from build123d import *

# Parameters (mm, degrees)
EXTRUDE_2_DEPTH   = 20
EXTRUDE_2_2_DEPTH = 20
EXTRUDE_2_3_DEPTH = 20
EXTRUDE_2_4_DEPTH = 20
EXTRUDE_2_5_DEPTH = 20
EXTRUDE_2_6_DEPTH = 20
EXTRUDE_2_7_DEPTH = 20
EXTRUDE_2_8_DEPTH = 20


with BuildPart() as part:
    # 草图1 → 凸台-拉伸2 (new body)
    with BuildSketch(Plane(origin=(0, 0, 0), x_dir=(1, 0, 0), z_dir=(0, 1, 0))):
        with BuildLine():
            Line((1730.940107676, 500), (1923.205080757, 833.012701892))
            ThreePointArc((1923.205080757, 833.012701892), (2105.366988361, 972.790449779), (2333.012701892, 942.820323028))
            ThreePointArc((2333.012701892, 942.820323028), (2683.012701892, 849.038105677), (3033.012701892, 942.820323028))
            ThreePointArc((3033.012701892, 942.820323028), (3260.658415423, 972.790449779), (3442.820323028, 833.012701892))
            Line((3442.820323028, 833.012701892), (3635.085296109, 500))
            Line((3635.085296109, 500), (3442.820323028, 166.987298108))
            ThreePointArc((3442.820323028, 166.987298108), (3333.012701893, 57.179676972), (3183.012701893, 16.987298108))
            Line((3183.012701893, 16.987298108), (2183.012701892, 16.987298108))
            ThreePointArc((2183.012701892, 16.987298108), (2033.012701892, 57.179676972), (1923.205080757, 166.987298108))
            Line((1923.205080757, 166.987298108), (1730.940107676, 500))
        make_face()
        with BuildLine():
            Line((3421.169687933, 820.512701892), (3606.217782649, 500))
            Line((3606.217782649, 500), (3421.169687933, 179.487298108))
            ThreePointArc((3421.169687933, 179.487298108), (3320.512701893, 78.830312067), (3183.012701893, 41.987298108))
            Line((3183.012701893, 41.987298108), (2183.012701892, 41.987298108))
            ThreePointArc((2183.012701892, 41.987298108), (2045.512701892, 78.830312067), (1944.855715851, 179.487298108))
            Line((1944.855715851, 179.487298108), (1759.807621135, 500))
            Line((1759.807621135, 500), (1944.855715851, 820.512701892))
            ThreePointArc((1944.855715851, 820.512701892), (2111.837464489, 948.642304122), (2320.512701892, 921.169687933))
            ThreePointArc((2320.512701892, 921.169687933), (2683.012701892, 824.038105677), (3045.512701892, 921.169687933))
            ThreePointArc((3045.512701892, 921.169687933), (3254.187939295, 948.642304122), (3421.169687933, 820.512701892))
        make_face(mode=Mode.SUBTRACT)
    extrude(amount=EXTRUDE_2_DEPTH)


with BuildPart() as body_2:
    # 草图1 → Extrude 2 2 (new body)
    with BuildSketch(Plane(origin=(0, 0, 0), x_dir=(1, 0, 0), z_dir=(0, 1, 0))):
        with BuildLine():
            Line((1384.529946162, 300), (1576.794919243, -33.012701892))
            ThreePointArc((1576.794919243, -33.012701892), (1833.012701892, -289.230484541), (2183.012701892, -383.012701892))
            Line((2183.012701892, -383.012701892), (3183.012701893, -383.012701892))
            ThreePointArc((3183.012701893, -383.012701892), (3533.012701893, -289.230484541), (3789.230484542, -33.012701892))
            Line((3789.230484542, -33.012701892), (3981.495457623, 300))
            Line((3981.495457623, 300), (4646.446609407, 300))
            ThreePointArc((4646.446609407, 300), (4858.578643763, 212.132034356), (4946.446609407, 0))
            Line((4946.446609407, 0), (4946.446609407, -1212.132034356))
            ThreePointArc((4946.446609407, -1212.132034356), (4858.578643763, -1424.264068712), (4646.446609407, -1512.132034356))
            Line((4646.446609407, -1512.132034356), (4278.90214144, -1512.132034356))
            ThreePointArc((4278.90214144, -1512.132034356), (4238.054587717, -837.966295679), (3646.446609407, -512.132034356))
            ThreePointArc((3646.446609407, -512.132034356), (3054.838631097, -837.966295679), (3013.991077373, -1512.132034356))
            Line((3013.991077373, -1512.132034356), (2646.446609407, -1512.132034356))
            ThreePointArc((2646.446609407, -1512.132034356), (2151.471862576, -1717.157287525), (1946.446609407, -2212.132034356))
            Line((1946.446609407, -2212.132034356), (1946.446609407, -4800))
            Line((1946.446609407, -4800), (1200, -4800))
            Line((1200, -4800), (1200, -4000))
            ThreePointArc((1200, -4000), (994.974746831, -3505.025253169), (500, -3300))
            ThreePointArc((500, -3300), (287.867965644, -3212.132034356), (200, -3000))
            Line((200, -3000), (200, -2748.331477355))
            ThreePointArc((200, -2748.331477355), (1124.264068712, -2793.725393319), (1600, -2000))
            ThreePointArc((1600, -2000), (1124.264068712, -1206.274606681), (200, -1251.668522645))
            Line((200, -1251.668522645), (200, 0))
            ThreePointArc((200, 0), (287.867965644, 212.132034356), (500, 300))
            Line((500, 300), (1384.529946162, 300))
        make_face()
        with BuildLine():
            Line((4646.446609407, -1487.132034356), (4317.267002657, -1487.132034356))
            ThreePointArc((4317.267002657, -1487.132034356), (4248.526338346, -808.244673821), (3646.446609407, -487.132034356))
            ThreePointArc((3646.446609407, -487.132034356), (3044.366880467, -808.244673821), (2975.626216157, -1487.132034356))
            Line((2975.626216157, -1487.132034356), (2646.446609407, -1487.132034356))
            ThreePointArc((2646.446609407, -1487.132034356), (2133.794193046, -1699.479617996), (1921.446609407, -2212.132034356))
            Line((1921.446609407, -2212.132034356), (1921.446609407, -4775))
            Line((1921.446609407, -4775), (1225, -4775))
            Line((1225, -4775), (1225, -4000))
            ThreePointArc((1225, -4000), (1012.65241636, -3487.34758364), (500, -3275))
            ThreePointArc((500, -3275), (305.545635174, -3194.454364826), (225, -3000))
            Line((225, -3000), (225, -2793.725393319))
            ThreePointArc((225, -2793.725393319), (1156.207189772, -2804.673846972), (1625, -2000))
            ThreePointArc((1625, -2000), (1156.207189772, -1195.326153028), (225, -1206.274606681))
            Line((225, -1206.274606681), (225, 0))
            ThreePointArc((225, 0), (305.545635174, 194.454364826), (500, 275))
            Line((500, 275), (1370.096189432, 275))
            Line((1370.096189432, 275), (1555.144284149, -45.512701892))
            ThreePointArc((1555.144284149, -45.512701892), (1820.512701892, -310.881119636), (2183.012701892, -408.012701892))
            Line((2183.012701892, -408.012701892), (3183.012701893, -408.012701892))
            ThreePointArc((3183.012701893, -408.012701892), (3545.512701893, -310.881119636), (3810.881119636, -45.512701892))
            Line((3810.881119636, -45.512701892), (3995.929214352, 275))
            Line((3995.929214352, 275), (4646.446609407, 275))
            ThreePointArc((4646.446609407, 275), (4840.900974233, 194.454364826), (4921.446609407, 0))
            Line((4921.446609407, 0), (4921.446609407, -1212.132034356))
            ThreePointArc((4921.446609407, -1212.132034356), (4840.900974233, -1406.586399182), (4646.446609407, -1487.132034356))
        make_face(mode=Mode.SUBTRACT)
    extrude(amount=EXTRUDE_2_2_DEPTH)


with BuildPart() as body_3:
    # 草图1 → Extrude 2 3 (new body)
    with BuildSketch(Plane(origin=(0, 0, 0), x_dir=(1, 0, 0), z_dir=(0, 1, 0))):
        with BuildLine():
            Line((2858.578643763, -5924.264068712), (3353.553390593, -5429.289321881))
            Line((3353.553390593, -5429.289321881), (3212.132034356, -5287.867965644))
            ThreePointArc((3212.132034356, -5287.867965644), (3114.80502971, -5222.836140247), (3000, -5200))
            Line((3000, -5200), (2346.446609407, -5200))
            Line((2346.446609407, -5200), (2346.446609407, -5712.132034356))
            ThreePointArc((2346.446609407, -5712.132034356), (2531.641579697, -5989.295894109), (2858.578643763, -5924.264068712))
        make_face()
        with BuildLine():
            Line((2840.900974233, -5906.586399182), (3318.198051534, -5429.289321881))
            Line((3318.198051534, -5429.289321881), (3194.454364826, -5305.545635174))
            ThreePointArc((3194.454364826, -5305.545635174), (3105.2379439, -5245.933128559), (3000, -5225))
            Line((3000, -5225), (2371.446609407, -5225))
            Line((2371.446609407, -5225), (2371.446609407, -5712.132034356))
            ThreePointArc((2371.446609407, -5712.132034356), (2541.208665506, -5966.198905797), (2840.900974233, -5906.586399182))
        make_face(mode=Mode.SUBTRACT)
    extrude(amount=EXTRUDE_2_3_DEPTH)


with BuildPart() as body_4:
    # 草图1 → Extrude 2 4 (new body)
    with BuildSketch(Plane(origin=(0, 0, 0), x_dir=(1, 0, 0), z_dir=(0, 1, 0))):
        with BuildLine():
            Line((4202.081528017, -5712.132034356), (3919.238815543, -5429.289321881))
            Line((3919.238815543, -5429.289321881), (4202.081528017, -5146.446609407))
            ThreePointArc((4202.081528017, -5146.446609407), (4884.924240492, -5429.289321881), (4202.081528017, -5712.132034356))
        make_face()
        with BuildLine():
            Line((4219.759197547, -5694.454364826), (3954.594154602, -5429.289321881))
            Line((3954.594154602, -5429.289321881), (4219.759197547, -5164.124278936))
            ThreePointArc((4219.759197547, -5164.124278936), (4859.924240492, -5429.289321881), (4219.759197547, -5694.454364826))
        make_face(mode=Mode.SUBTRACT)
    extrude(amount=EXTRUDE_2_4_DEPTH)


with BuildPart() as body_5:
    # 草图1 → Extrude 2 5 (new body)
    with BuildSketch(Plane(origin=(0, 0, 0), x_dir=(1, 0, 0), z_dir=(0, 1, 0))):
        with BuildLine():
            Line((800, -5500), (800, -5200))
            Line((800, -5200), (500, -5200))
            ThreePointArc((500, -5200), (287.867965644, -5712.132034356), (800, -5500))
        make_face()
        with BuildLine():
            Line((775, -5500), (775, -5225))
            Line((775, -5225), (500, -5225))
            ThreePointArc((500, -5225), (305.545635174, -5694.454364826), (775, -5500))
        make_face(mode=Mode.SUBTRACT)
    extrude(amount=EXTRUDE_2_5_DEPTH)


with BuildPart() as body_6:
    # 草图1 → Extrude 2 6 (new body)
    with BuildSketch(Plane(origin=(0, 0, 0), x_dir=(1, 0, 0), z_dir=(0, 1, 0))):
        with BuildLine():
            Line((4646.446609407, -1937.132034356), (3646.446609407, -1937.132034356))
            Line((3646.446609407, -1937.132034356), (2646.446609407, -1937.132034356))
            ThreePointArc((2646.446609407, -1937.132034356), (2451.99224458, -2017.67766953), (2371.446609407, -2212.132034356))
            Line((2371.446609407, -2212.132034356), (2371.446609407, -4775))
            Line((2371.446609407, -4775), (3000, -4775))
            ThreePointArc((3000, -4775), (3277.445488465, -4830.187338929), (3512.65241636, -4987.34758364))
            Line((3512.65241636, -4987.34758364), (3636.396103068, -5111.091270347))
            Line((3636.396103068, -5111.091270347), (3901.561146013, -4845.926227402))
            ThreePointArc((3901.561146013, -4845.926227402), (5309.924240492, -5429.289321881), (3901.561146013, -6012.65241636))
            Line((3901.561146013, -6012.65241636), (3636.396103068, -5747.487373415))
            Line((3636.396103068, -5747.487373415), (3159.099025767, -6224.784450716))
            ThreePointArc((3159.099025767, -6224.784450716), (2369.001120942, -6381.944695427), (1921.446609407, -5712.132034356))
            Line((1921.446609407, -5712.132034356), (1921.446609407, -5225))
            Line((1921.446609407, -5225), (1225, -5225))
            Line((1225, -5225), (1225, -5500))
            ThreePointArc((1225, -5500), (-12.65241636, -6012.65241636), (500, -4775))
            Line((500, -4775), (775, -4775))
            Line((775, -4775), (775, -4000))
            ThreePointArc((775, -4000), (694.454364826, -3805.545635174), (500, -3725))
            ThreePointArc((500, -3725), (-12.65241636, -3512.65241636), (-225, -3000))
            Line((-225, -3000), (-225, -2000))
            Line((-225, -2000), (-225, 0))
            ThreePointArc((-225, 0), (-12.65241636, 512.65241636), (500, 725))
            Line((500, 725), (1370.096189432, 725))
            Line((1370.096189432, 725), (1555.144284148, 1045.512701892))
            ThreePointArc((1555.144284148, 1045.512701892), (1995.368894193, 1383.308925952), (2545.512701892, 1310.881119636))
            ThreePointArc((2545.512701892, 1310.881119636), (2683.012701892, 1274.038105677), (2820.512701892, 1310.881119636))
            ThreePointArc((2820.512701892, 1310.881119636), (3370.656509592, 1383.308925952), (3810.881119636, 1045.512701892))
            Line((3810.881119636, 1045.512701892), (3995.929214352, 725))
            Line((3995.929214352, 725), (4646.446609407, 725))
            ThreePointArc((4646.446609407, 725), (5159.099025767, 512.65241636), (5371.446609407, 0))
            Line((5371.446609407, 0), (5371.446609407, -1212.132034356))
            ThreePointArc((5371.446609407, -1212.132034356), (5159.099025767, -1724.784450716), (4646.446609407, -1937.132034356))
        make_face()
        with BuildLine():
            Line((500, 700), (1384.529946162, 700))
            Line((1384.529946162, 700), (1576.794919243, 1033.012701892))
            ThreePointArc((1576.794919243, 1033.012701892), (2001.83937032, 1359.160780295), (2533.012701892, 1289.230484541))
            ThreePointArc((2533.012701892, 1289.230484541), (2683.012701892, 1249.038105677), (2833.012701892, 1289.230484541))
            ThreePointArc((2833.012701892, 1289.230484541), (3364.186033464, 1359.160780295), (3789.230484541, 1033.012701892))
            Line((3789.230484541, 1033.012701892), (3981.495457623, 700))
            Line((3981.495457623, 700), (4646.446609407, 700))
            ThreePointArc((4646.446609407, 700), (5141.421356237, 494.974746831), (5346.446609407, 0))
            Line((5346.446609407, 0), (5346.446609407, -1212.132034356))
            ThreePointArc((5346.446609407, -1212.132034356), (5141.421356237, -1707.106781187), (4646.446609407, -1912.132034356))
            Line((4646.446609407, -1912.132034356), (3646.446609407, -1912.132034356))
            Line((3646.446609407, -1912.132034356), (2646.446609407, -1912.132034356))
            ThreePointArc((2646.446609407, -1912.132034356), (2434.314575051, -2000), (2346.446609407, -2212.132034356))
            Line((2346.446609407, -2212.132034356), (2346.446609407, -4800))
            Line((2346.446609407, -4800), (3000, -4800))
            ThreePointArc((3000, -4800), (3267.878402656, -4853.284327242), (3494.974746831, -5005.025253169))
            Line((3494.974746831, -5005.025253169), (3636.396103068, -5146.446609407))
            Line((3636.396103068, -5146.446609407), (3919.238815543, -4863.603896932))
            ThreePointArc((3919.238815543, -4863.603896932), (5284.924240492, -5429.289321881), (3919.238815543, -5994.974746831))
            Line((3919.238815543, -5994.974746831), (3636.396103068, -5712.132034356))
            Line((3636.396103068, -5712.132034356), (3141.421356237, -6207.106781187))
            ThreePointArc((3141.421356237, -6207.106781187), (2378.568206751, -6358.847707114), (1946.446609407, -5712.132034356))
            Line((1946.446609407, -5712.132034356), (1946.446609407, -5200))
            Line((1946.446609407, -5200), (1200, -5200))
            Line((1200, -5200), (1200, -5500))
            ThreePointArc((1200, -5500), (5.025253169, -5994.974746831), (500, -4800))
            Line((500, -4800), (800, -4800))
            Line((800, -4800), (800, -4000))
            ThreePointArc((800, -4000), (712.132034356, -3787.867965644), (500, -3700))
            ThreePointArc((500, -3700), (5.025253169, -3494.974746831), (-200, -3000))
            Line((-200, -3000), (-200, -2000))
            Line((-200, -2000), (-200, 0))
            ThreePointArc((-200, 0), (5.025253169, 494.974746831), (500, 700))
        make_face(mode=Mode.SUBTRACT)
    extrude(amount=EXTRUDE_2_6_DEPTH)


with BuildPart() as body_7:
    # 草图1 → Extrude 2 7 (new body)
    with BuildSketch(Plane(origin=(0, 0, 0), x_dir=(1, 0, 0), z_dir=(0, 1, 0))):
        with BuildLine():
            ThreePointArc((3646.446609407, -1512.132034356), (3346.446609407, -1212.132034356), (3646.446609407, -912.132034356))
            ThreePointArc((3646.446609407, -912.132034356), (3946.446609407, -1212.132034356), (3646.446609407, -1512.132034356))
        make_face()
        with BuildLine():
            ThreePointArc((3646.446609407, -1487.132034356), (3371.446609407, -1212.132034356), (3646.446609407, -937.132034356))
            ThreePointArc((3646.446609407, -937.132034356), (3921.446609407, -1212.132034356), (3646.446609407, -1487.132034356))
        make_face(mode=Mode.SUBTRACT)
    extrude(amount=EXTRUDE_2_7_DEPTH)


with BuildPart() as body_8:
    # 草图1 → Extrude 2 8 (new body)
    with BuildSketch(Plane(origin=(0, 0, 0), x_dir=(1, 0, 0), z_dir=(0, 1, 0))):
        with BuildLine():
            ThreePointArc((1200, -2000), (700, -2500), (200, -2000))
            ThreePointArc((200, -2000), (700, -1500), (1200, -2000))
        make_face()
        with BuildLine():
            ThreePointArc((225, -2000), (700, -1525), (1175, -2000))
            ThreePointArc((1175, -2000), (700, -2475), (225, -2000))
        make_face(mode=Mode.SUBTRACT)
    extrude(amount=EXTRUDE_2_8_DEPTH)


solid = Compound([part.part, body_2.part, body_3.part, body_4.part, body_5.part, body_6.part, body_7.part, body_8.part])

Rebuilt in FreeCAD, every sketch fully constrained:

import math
import FreeCAD as App
import Part
import Sketcher
Q = App.Units.Quantity

doc = App.newDocument("Part")
body = doc.addObject("PartDesign::Body", "Body")

# Sketch on XZ plane
sketch1 = body.newObject("Sketcher::SketchObject", "Sketch")
sketch1.AttachmentSupport = (doc.getObject("XZ_Plane"), [""])
sketch1.MapMode = "FlatFace"
sketch1.addGeometry([
    Part.LineSegment(App.Vector(1923, -833, 0), App.Vector(1731, -500, 0)),  # 0
    Part.LineSegment(App.Vector(1731, -500, 0), App.Vector(1923, -167, 0)),  # 1
    Part.ArcOfCircle(Part.Circle(App.Vector(2183, -317, 0), App.Vector(0, 0, 1), 300), math.radians(90), math.radians(150)),  # 2
    Part.LineSegment(App.Vector(2183, -17, 0), App.Vector(3183, -17, 0)),  # 3
    Part.ArcOfCircle(Part.Circle(App.Vector(3183, -317, 0), App.Vector(0, 0, 1), 300), math.radians(30), math.radians(90)),  # 4
    Part.LineSegment(App.Vector(3443, -167, 0), App.Vector(3635, -500, 0)),  # 5
    Part.LineSegment(App.Vector(3635, -500, 0), App.Vector(3443, -833, 0)),  # 6
    Part.ArcOfCircle(Part.Circle(App.Vector(3183, -683, 0), App.Vector(0, 0, 1), 300), math.radians(-120), math.radians(-30)),  # 7
    Part.ArcOfCircle(Part.Circle(App.Vector(2683, -1549, 0), App.Vector(0, 0, 1), 700), math.radians(60), math.radians(120)),  # 8
    Part.ArcOfCircle(Part.Circle(App.Vector(2183, -683, 0), App.Vector(0, 0, 1), 300), math.radians(-150), math.radians(-60)),  # 9
    Part.LineSegment(App.Vector(3421, -821, 0), App.Vector(3606, -500, 0)),  # 10
    Part.LineSegment(App.Vector(3606, -500, 0), App.Vector(3421, -179, 0)),  # 11
    Part.ArcOfCircle(Part.Circle(App.Vector(3183, -317, 0), App.Vector(0, 0, 1), 275), math.radians(30), math.radians(90)),  # 12
    Part.LineSegment(App.Vector(3183, -42, 0), App.Vector(2183, -42, 0)),  # 13
    Part.ArcOfCircle(Part.Circle(App.Vector(2183, -317, 0), App.Vector(0, 0, 1), 275), math.radians(90), math.radians(150)),  # 14
    Part.LineSegment(App.Vector(1945, -179, 0), App.Vector(1760, -500, 0)),  # 15
    Part.LineSegment(App.Vector(1760, -500, 0), App.Vector(1945, -821, 0)),  # 16
    Part.ArcOfCircle(Part.Circle(App.Vector(2183, -683, 0), App.Vector(0, 0, 1), 275), math.radians(-150), math.radians(-60)),  # 17
    Part.ArcOfCircle(Part.Circle(App.Vector(2683, -1549, 0), App.Vector(0, 0, 1), 725), math.radians(60), math.radians(120)),  # 18
    Part.ArcOfCircle(Part.Circle(App.Vector(3183, -683, 0), App.Vector(0, 0, 1), 275), math.radians(-120), math.radians(-30)),  # 19
], False)
sketch1.addConstraint([
    Sketcher.Constraint("Coincident", 0, 2, 1, 1),
    Sketcher.Constraint("Tangent", 1, 2, 2, 2),
    Sketcher.Constraint("Tangent", 2, 1, 3, 1),
    Sketcher.Constraint("Tangent", 3, 2, 4, 2),
    Sketcher.Constraint("Tangent", 4, 1, 5, 1),
    Sketcher.Constraint("Coincident", 5, 2, 6, 1),
    Sketcher.Constraint("Tangent", 6, 2, 7, 2),
    Sketcher.Constraint("Tangent", 7, 1, 8, 1),
    Sketcher.Constraint("Tangent", 8, 2, 9, 2),
    Sketcher.Constraint("Tangent", 9, 1, 0, 1),
    Sketcher.Constraint("Coincident", 10, 2, 11, 1),
    Sketcher.Constraint("Tangent", 11, 2, 12, 1),
    Sketcher.Constraint("Tangent", 12, 2, 13, 1),
    Sketcher.Constraint("Tangent", 13, 2, 14, 1),
    Sketcher.Constraint("Tangent", 14, 2, 15, 1),
    Sketcher.Constraint("Coincident", 15, 2, 16, 1),
    Sketcher.Constraint("Tangent", 16, 2, 17, 1),
    Sketcher.Constraint("Tangent", 17, 2, 18, 2),
    Sketcher.Constraint("Tangent", 18, 1, 19, 1),
    Sketcher.Constraint("Tangent", 19, 2, 10, 1),
    Sketcher.Constraint("Horizontal", 3),
    Sketcher.Constraint("Horizontal", 13),
    Sketcher.Constraint("Coincident", 12, 3, 4, 3),
    Sketcher.Constraint("Coincident", 14, 3, 2, 3),
    Sketcher.Constraint("Coincident", 17, 3, 9, 3),
    Sketcher.Constraint("Coincident", 18, 3, 8, 3),
    Sketcher.Constraint("Coincident", 19, 3, 7, 3),
    Sketcher.Constraint("Equal", 2, 4),
    Sketcher.Constraint("Equal", 4, 7),
    Sketcher.Constraint("Equal", 7, 9),
    Sketcher.Constraint("Equal", 14, 17),
    Sketcher.Constraint("Parallel", 0, 5),
    Sketcher.Constraint("Parallel", 1, 6),
    Sketcher.Constraint("Parallel", 6, 10),
    Sketcher.Constraint("Parallel", 5, 11),
    Sketcher.Constraint("Parallel", 10, 15),
    Sketcher.Constraint("Parallel", 11, 16),
    Sketcher.Constraint("Horizontal", 7, 3, 9, 3),
    Sketcher.Constraint("Horizontal", 0, 2, 5, 2),
    Sketcher.Constraint("Horizontal", 5, 2, 10, 2),
    Sketcher.Constraint("Vertical", 4, 3, 7, 3),
    Sketcher.Constraint("Radius", 2, 300.0),
    Sketcher.Constraint("Radius", 8, 700.0),
    Sketcher.Constraint("Radius", 12, 275.0),
    Sketcher.Constraint("DistanceX", 3, 1, 3, 2, 1000.0),
    Sketcher.Constraint("Angle", 0, Q("120 deg")),
    Sketcher.Constraint("DistanceY", 0, 2, -1, 1, 500.0),
    Sketcher.Constraint("DistanceX", -1, 1, 2, 3, 2183.012702),
    Sketcher.Constraint("DistanceY", 2, 3, -1, 1, 316.987298),
])
pad1 = body.newObject("PartDesign::Pad", "Pad")
pad1.Profile = sketch1
pad1.Length = 20
pad1.Reversed = True
body2 = doc.addObject("PartDesign::Body", "Body001")

# Sketch on XZ plane
sketch2 = body2.newObject("Sketcher::SketchObject", "Sketch001")
sketch2.AttachmentSupport = (doc.getObject("XZ_Plane001"), [""])
sketch2.MapMode = "FlatFace"
sketch2.addGeometry([
    Part.LineSegment(App.Vector(1577, 33, 0), App.Vector(1385, -300, 0)),  # 0
    Part.LineSegment(App.Vector(1385, -300, 0), App.Vector(500, -300, 0)),  # 1
    Part.ArcOfCircle(Part.Circle(App.Vector(500, 0, 0), App.Vector(0, 0, 1), 300), math.radians(180), math.radians(270)),  # 2
    Part.LineSegment(App.Vector(200, 0, 0), App.Vector(200, 1252, 0)),  # 3
    Part.ArcOfCircle(Part.Circle(App.Vector(700, 2000, 0), App.Vector(0, 0, 1), 900), math.radians(-124), math.radians(0)),  # 4
    Part.ArcOfCircle(Part.Circle(App.Vector(700, 2000, 0), App.Vector(0, 0, 1), 900), math.radians(0), math.radians(124)),  # 5
    Part.LineSegment(App.Vector(200, 2748, 0), App.Vector(200, 3000, 0)),  # 6
    Part.ArcOfCircle(Part.Circle(App.Vector(500, 3000, 0), App.Vector(0, 0, 1), 300), math.radians(90), math.radians(180)),  # 7
    Part.ArcOfCircle(Part.Circle(App.Vector(500, 4000, 0), App.Vector(0, 0, 1), 700), math.radians(-90), math.radians(0)),  # 8
    Part.LineSegment(App.Vector(1200, 4000, 0), App.Vector(1200, 4800, 0)),  # 9
    Part.LineSegment(App.Vector(1200, 4800, 0), App.Vector(1946, 4800, 0)),  # 10
    Part.LineSegment(App.Vector(1946, 4800, 0), App.Vector(1946, 2212, 0)),  # 11
    Part.ArcOfCircle(Part.Circle(App.Vector(2646, 2212, 0), App.Vector(0, 0, 1), 700), math.radians(180), math.radians(270)),  # 12
    Part.LineSegment(App.Vector(2646, 1512, 0), App.Vector(3014, 1512, 0)),  # 13
    Part.ArcOfCircle(Part.Circle(App.Vector(3646, 1212, 0), App.Vector(0, 0, 1), 700), math.radians(155), math.radians(385)),  # 14
    Part.LineSegment(App.Vector(4279, 1512, 0), App.Vector(4646, 1512, 0)),  # 15
    Part.ArcOfCircle(Part.Circle(App.Vector(4646, 1212, 0), App.Vector(0, 0, 1), 300), math.radians(0), math.radians(90)),  # 16
    Part.LineSegment(App.Vector(4946, 1212, 0), App.Vector(4946, 0, 0)),  # 17
    Part.ArcOfCircle(Part.Circle(App.Vector(4646, 0, 0), App.Vector(0, 0, 1), 300), math.radians(-90), math.radians(0)),  # 18
    Part.LineSegment(App.Vector(4646, -300, 0), App.Vector(3981, -300, 0)),  # 19
    Part.LineSegment(App.Vector(3981, -300, 0), App.Vector(3789, 33, 0)),  # 20
    Part.ArcOfCircle(Part.Circle(App.Vector(3183, -317, 0), App.Vector(0, 0, 1), 700), math.radians(30), math.radians(90)),  # 21
    Part.LineSegment(App.Vector(3183, 383, 0), App.Vector(2183, 383, 0)),  # 22
    Part.ArcOfCircle(Part.Circle(App.Vector(2183, -317, 0), App.Vector(0, 0, 1), 700), math.radians(90), math.radians(150)),  # 23
    Part.LineSegment(App.Vector(4646, 1487, 0), App.Vector(4317, 1487, 0)),  # 24
    Part.ArcOfCircle(Part.Circle(App.Vector(3646, 1212, 0), App.Vector(0, 0, 1), 725), math.radians(158), math.radians(382)),  # 25
    Part.LineSegment(App.Vector(2976, 1487, 0), App.Vector(2646, 1487, 0)),  # 26
    Part.ArcOfCircle(Part.Circle(App.Vector(2646, 2212, 0), App.Vector(0, 0, 1), 725), math.radians(180), math.radians(270)),  # 27
    Part.LineSegment(App.Vector(1921, 2212, 0), App.Vector(1921, 4775, 0)),  # 28
    Part.LineSegment(App.Vector(1921, 4775, 0), App.Vector(1225, 4775, 0)),  # 29
    Part.LineSegment(App.Vector(1225, 4775, 0), App.Vector(1225, 4000, 0)),  # 30
    Part.ArcOfCircle(Part.Circle(App.Vector(500, 4000, 0), App.Vector(0, 0, 1), 725), math.radians(-90), math.radians(0)),  # 31
    Part.ArcOfCircle(Part.Circle(App.Vector(500, 3000, 0), App.Vector(0, 0, 1), 275), math.radians(90), math.radians(180)),  # 32
    Part.LineSegment(App.Vector(225, 3000, 0), App.Vector(225, 2794, 0)),  # 33
    Part.ArcOfCircle(Part.Circle(App.Vector(700, 2000, 0), App.Vector(0, 0, 1), 925), math.radians(0), math.radians(121)),  # 34
    Part.ArcOfCircle(Part.Circle(App.Vector(700, 2000, 0), App.Vector(0, 0, 1), 925), math.radians(-121), math.radians(0)),  # 35
    Part.LineSegment(App.Vector(225, 1206, 0), App.Vector(225, 0, 0)),  # 36
    Part.ArcOfCircle(Part.Circle(App.Vector(500, 0, 0), App.Vector(0, 0, 1), 275), math.radians(-180), math.radians(-90)),  # 37
    Part.LineSegment(App.Vector(500, -275, 0), App.Vector(1370, -275, 0)),  # 38
    Part.LineSegment(App.Vector(1370, -275, 0), App.Vector(1555, 46, 0)),  # 39
    Part.ArcOfCircle(Part.Circle(App.Vector(2183, -317, 0), App.Vector(0, 0, 1), 725), math.radians(90), math.radians(150)),  # 40
    Part.LineSegment(App.Vector(2183, 408, 0), App.Vector(3183, 408, 0)),  # 41
    Part.ArcOfCircle(Part.Circle(App.Vector(3183, -317, 0), App.Vector(0, 0, 1), 725), math.radians(30), math.radians(90)),  # 42
    Part.LineSegment(App.Vector(3811, 46, 0), App.Vector(3996, -275, 0)),  # 43
    Part.LineSegment(App.Vector(3996, -275, 0), App.Vector(4646, -275, 0)),  # 44
    Part.ArcOfCircle(Part.Circle(App.Vector(4646, 0, 0), App.Vector(0, 0, 1), 275), math.radians(-90), math.radians(0)),  # 45
    Part.LineSegment(App.Vector(4921, 0, 0), App.Vector(4921, 1212, 0)),  # 46
    Part.ArcOfCircle(Part.Circle(App.Vector(4646, 1212, 0), App.Vector(0, 0, 1), 275), math.radians(0), math.radians(90)),  # 47
], False)
sketch2.addConstraint([
    Sketcher.Constraint("Coincident", 0, 2, 1, 1),
    Sketcher.Constraint("Tangent", 1, 2, 2, 2),
    Sketcher.Constraint("Tangent", 2, 1, 3, 1),
    Sketcher.Constraint("Coincident", 3, 2, 4, 1),
    Sketcher.Constraint("Coincident", 4, 2, 5, 1),
    Sketcher.Constraint("Coincident", 5, 2, 6, 1),
    Sketcher.Constraint("Tangent", 6, 2, 7, 2),
    Sketcher.Constraint("Tangent", 7, 1, 8, 1),
    Sketcher.Constraint("Tangent", 8, 2, 9, 1),
    Sketcher.Constraint("Coincident", 9, 2, 10, 1),
    Sketcher.Constraint("Coincident", 10, 2, 11, 1),
    Sketcher.Constraint("Tangent", 11, 2, 12, 1),
    Sketcher.Constraint("Tangent", 12, 2, 13, 1),
    Sketcher.Constraint("Coincident", 13, 2, 14, 1),
    Sketcher.Constraint("Coincident", 14, 2, 15, 1),
    Sketcher.Constraint("Tangent", 15, 2, 16, 2),
    Sketcher.Constraint("Tangent", 16, 1, 17, 1),
    Sketcher.Constraint("Tangent", 17, 2, 18, 2),
    Sketcher.Constraint("Tangent", 18, 1, 19, 1),
    Sketcher.Constraint("Coincident", 19, 2, 20, 1),
    Sketcher.Constraint("Tangent", 20, 2, 21, 1),
    Sketcher.Constraint("Tangent", 21, 2, 22, 1),
    Sketcher.Constraint("Tangent", 22, 2, 23, 1),
    Sketcher.Constraint("Tangent", 23, 2, 0, 1),
    Sketcher.Constraint("Coincident", 24, 2, 25, 2),
    Sketcher.Constraint("Coincident", 25, 1, 26, 1),
    Sketcher.Constraint("Tangent", 26, 2, 27, 2),
    Sketcher.Constraint("Coincident", 27, 1, 28, 1),
    Sketcher.Constraint("Coincident", 28, 2, 29, 1),
    Sketcher.Constraint("Coincident", 29, 2, 30, 1),
    Sketcher.Constraint("Tangent", 30, 2, 31, 2),
    Sketcher.Constraint("Tangent", 31, 1, 32, 1),
    Sketcher.Constraint("Tangent", 32, 2, 33, 1),
    Sketcher.Constraint("Coincident", 33, 2, 34, 2),
    Sketcher.Constraint("Coincident", 34, 1, 35, 2),
    Sketcher.Constraint("Coincident", 35, 1, 36, 1),
    Sketcher.Constraint("Tangent", 36, 2, 37, 1),
    Sketcher.Constraint("Tangent", 37, 2, 38, 1),
    Sketcher.Constraint("Coincident", 38, 2, 39, 1),
    Sketcher.Constraint("Tangent", 39, 2, 40, 2),
    Sketcher.Constraint("Tangent", 40, 1, 41, 1),
    Sketcher.Constraint("Tangent", 41, 2, 42, 2),
    Sketcher.Constraint("Tangent", 42, 1, 43, 1),
    Sketcher.Constraint("Coincident", 43, 2, 44, 1),
    Sketcher.Constraint("Tangent", 44, 2, 45, 1),
    Sketcher.Constraint("Tangent", 45, 2, 46, 1),
    Sketcher.Constraint("Tangent", 46, 2, 47, 1),
    Sketcher.Constraint("Tangent", 47, 2, 24, 1),
    Sketcher.Constraint("Horizontal", 1),
    Sketcher.Constraint("Vertical", 3),
    Sketcher.Constraint("Vertical", 6),
    Sketcher.Constraint("Vertical", 9),
    Sketcher.Constraint("Horizontal", 10),
    Sketcher.Constraint("Vertical", 11),
    Sketcher.Constraint("Horizontal", 13),
    Sketcher.Constraint("Horizontal", 15),
    Sketcher.Constraint("Vertical", 17),
    Sketcher.Constraint("Horizontal", 19),
    Sketcher.Constraint("Horizontal", 22),
    Sketcher.Constraint("Horizontal", 24),
    Sketcher.Constraint("Horizontal", 26),
    Sketcher.Constraint("Vertical", 28),
    Sketcher.Constraint("Horizontal", 29),
    Sketcher.Constraint("Vertical", 30),
    Sketcher.Constraint("Vertical", 33),
    Sketcher.Constraint("Vertical", 36),
    Sketcher.Constraint("Horizontal", 38),
    Sketcher.Constraint("Horizontal", 41),
    Sketcher.Constraint("Horizontal", 44),
    Sketcher.Constraint("Vertical", 46),
    Sketcher.Constraint("Coincident", 5, 3, 4, 3),
    Sketcher.Constraint("Coincident", 25, 3, 14, 3),
    Sketcher.Constraint("Coincident", 27, 3, 12, 3),
    Sketcher.Constraint("Coincident", 31, 3, 8, 3),
    Sketcher.Constraint("Coincident", 32, 3, 7, 3),
    Sketcher.Constraint("Coincident", 34, 3, 4, 3),
    Sketcher.Constraint("Coincident", 35, 3, 4, 3),
    Sketcher.Constraint("Coincident", 37, 3, 2, 3),
    Sketcher.Constraint("Coincident", 40, 3, 23, 3),
    Sketcher.Constraint("Coincident", 42, 3, 21, 3),
    Sketcher.Constraint("Coincident", 45, 3, 18, 3),
    Sketcher.Constraint("Coincident", 47, 3, 16, 3),
    Sketcher.Constraint("Equal", 2, 7),
    Sketcher.Constraint("Equal", 8, 12),
    Sketcher.Constraint("Equal", 12, 14),
    Sketcher.Constraint("Equal", 7, 16),
    Sketcher.Constraint("Equal", 16, 18),
    Sketcher.Constraint("Equal", 14, 21),
    Sketcher.Constraint("Equal", 21, 23),
    Sketcher.Constraint("Equal", 25, 27),
    Sketcher.Constraint("Equal", 27, 31),
    Sketcher.Constraint("Equal", 32, 37),
    Sketcher.Constraint("Equal", 31, 40),
    Sketcher.Constraint("Equal", 37, 45),
    Sketcher.Constraint("PointOnObject", 2, 3, -1),
    Sketcher.Constraint("PointOnObject", 18, 3, -1),
    Sketcher.Constraint("Parallel", 0, 39),
    Sketcher.Constraint("Parallel", 20, 43),
    Sketcher.Constraint("Horizontal", 14, 3, 16, 3),
    Sketcher.Constraint("Horizontal", 35, 3, 4, 2),
    Sketcher.Constraint("Horizontal", 4, 2, 34, 1),
    Sketcher.Constraint("Horizontal", 26, 2, 47, 2),
    Sketcher.Constraint("Vertical", 2, 3, 7, 3),
    Sketcher.Constraint("Vertical", 7, 3, 8, 3),
    Sketcher.Constraint("Equal", 13, 15),
    Sketcher.Constraint("Equal", 0, 20),
    Sketcher.Constraint("Radius", 2, 300.0),
    Sketcher.Constraint("Radius", 4, 900.0),
    Sketcher.Constraint("Radius", 8, 700.0),
    Sketcher.Constraint("Radius", 25, 725.0),
    Sketcher.Constraint("Radius", 34, 925.0),
    Sketcher.Constraint("DistanceX", 22, 2, 22, 1, 1000.0),
    Sketcher.Constraint("DistanceY", 9, 1, 9, 2, 800.0),
    Sketcher.Constraint("DistanceY", 30, 2, 30, 1, 775.0),
    Sketcher.Constraint("Angle", 0, Q("-120 deg")),
    Sketcher.Constraint("DistanceX", -1, 1, 2, 3, 500.0),
    Sketcher.Constraint("DistanceX", -1, 1, 4, 3, 700.0),
    Sketcher.Constraint("DistanceY", -1, 1, 4, 3, 2000.0),
    Sketcher.Constraint("DistanceY", -1, 1, 7, 3, 3000.0),
    Sketcher.Constraint("DistanceX", 10, 1, 10, 2, 746.446609),
    Sketcher.Constraint("DistanceX", 19, 2, 19, 1, 664.951152),
    Sketcher.Constraint("DistanceX", 38, 1, 38, 2, 870.096189),
    Sketcher.Constraint("DistanceX", -1, 1, 21, 3, 3183.012702),
    Sketcher.Constraint("DistanceY", 11, 2, 11, 1, 2587.867966),
    Sketcher.Constraint("DistanceY", 28, 1, 28, 2, 2562.867966),
])
pad2 = body2.newObject("PartDesign::Pad", "Pad001")
pad2.Profile = sketch2
pad2.Length = 20
pad2.Reversed = True
body3 = doc.addObject("PartDesign::Body", "Body002")

# Sketch on XZ plane
sketch3 = body3.newObject("Sketcher::SketchObject", "Sketch002")
sketch3.AttachmentSupport = (doc.getObject("XZ_Plane002"), [""])
sketch3.MapMode = "FlatFace"
sketch3.addGeometry([
    Part.LineSegment(App.Vector(2859, 5924, 0), App.Vector(3354, 5429, 0)),  # 0
    Part.LineSegment(App.Vector(3354, 5429, 0), App.Vector(3212, 5288, 0)),  # 1
    Part.ArcOfCircle(Part.Circle(App.Vector(3000, 5500, 0), App.Vector(0, 0, 1), 300), math.radians(-90), math.radians(-45)),  # 2
    Part.LineSegment(App.Vector(3000, 5200, 0), App.Vector(2346, 5200, 0)),  # 3
    Part.LineSegment(App.Vector(2346, 5200, 0), App.Vector(2346, 5712, 0)),  # 4
    Part.ArcOfCircle(Part.Circle(App.Vector(2646, 5712, 0), App.Vector(0, 0, 1), 300), math.radians(45), math.radians(180)),  # 5
    Part.LineSegment(App.Vector(3318, 5429, 0), App.Vector(2841, 5907, 0)),  # 6
    Part.ArcOfCircle(Part.Circle(App.Vector(2646, 5712, 0), App.Vector(0, 0, 1), 275), math.radians(45), math.radians(180)),  # 7
    Part.LineSegment(App.Vector(2371, 5712, 0), App.Vector(2371, 5225, 0)),  # 8
    Part.LineSegment(App.Vector(2371, 5225, 0), App.Vector(3000, 5225, 0)),  # 9
    Part.ArcOfCircle(Part.Circle(App.Vector(3000, 5500, 0), App.Vector(0, 0, 1), 275), math.radians(-90), math.radians(-45)),  # 10
    Part.LineSegment(App.Vector(3194, 5306, 0), App.Vector(3318, 5429, 0)),  # 11
], False)
sketch3.addConstraint([
    Sketcher.Constraint("Coincident", 0, 2, 1, 1),
    Sketcher.Constraint("Tangent", 1, 2, 2, 2),
    Sketcher.Constraint("Tangent", 2, 1, 3, 1),
    Sketcher.Constraint("Coincident", 3, 2, 4, 1),
    Sketcher.Constraint("Tangent", 4, 2, 5, 2),
    Sketcher.Constraint("Tangent", 5, 1, 0, 1),
    Sketcher.Constraint("Tangent", 6, 2, 7, 1),
    Sketcher.Constraint("Tangent", 7, 2, 8, 1),
    Sketcher.Constraint("Coincident", 8, 2, 9, 1),
    Sketcher.Constraint("Tangent", 9, 2, 10, 1),
    Sketcher.Constraint("Tangent", 10, 2, 11, 1),
    Sketcher.Constraint("Coincident", 11, 2, 6, 1),
    Sketcher.Constraint("Horizontal", 3),
    Sketcher.Constraint("Vertical", 4),
    Sketcher.Constraint("Vertical", 8),
    Sketcher.Constraint("Horizontal", 9),
    Sketcher.Constraint("Coincident", 7, 3, 5, 3),
    Sketcher.Constraint("Coincident", 10, 3, 2, 3),
    Sketcher.Constraint("Equal", 2, 5),
    Sketcher.Constraint("Equal", 7, 10),
    Sketcher.Constraint("Perpendicular", 0, 1),
    Sketcher.Constraint("Perpendicular", 1, 6),
    Sketcher.Constraint("Perpendicular", 6, 11),
    Sketcher.Constraint("Horizontal", 0, 2, 11, 2),
    Sketcher.Constraint("Radius", 2, 300.0),
    Sketcher.Constraint("Radius", 7, 275.0),
    Sketcher.Constraint("Distance", 0, 700.0),
    Sketcher.Constraint("Distance", 1, 200.0),
    Sketcher.Constraint("DistanceX", -1, 1, 2, 3, 3000.0),
    Sketcher.Constraint("DistanceY", -1, 1, 2, 3, 5500.0),
])
pad3 = body3.newObject("PartDesign::Pad", "Pad002")
pad3.Profile = sketch3
pad3.Length = 20
pad3.Reversed = True
body4 = doc.addObject("PartDesign::Body", "Body003")

# Sketch on XZ plane
sketch4 = body4.newObject("Sketcher::SketchObject", "Sketch003")
sketch4.AttachmentSupport = (doc.getObject("XZ_Plane003"), [""])
sketch4.MapMode = "FlatFace"
sketch4.addGeometry([
    Part.LineSegment(App.Vector(3919, 5429, 0), App.Vector(4202, 5712, 0)),  # 0
    Part.ArcOfCircle(Part.Circle(App.Vector(4485, 5429, 0), App.Vector(0, 0, 1), 400), math.radians(-135), math.radians(135)),  # 1
    Part.LineSegment(App.Vector(4202, 5146, 0), App.Vector(3919, 5429, 0)),  # 2
    Part.LineSegment(App.Vector(4220, 5694, 0), App.Vector(3955, 5429, 0)),  # 3
    Part.LineSegment(App.Vector(3955, 5429, 0), App.Vector(4220, 5164, 0)),  # 4
    Part.ArcOfCircle(Part.Circle(App.Vector(4485, 5429, 0), App.Vector(0, 0, 1), 375), math.radians(-135), math.radians(135)),  # 5
], False)
sketch4.addConstraint([
    Sketcher.Constraint("Tangent", 0, 2, 1, 2),
    Sketcher.Constraint("Tangent", 1, 1, 2, 1),
    Sketcher.Constraint("Coincident", 2, 2, 0, 1),
    Sketcher.Constraint("Coincident", 3, 2, 4, 1),
    Sketcher.Constraint("Tangent", 4, 2, 5, 1),
    Sketcher.Constraint("Tangent", 5, 2, 3, 1),
    Sketcher.Constraint("Coincident", 5, 3, 1, 3),
    Sketcher.Constraint("Perpendicular", 0, 2),
    Sketcher.Constraint("Perpendicular", 2, 3),
    Sketcher.Constraint("Perpendicular", 3, 4),
    Sketcher.Constraint("Horizontal", 5, 3, 2, 2),
    Sketcher.Constraint("Radius", 1, 400.0),
    Sketcher.Constraint("Radius", 5, 375.0),
    Sketcher.Constraint("DistanceX", -1, 1, 1, 3, 4484.92424),
    Sketcher.Constraint("DistanceY", -1, 1, 1, 3, 5429.289322),
])
pad4 = body4.newObject("PartDesign::Pad", "Pad003")
pad4.Profile = sketch4
pad4.Length = 20
pad4.Reversed = True
body5 = doc.addObject("PartDesign::Body", "Body004")

# Sketch on XZ plane
sketch5 = body5.newObject("Sketcher::SketchObject", "Sketch004")
sketch5.AttachmentSupport = (doc.getObject("XZ_Plane004"), [""])
sketch5.MapMode = "FlatFace"
sketch5.addGeometry([
    Part.LineSegment(App.Vector(800, 5500, 0), App.Vector(800, 5200, 0)),  # 0
    Part.LineSegment(App.Vector(800, 5200, 0), App.Vector(500, 5200, 0)),  # 1
    Part.ArcOfCircle(Part.Circle(App.Vector(500, 5500, 0), App.Vector(0, 0, 1), 300), math.radians(0), math.radians(270)),  # 2
    Part.LineSegment(App.Vector(775, 5225, 0), App.Vector(775, 5500, 0)),  # 3
    Part.ArcOfCircle(Part.Circle(App.Vector(500, 5500, 0), App.Vector(0, 0, 1), 275), math.radians(0), math.radians(270)),  # 4
    Part.LineSegment(App.Vector(500, 5225, 0), App.Vector(775, 5225, 0)),  # 5
], False)
sketch5.addConstraint([
    Sketcher.Constraint("Coincident", 0, 2, 1, 1),
    Sketcher.Constraint("Tangent", 1, 2, 2, 2),
    Sketcher.Constraint("Tangent", 2, 1, 0, 1),
    Sketcher.Constraint("Tangent", 3, 2, 4, 1),
    Sketcher.Constraint("Tangent", 4, 2, 5, 1),
    Sketcher.Constraint("Coincident", 5, 2, 3, 1),
    Sketcher.Constraint("Vertical", 0),
    Sketcher.Constraint("Horizontal", 1),
    Sketcher.Constraint("Vertical", 3),
    Sketcher.Constraint("Horizontal", 5),
    Sketcher.Constraint("Coincident", 4, 3, 2, 3),
    Sketcher.Constraint("Radius", 2, 300.0),
    Sketcher.Constraint("Radius", 4, 275.0),
    Sketcher.Constraint("DistanceX", -1, 1, 2, 3, 500.0),
    Sketcher.Constraint("DistanceY", -1, 1, 2, 3, 5500.0),
])
pad5 = body5.newObject("PartDesign::Pad", "Pad004")
pad5.Profile = sketch5
pad5.Length = 20
pad5.Reversed = True
body6 = doc.addObject("PartDesign::Body", "Body005")

# Sketch on XZ plane
sketch6 = body6.newObject("Sketcher::SketchObject", "Sketch005")
sketch6.AttachmentSupport = (doc.getObject("XZ_Plane005"), [""])
sketch6.MapMode = "FlatFace"
sketch6.addGeometry([
    Part.LineSegment(App.Vector(2646, 1937, 0), App.Vector(4646, 1937, 0)),  # 0
    Part.ArcOfCircle(Part.Circle(App.Vector(4646, 1212, 0), App.Vector(0, 0, 1), 725), math.radians(0), math.radians(90)),  # 1
    Part.LineSegment(App.Vector(5371, 1212, 0), App.Vector(5371, 0, 0)),  # 2
    Part.ArcOfCircle(Part.Circle(App.Vector(4646, 0, 0), App.Vector(0, 0, 1), 725), math.radians(-90), math.radians(0)),  # 3
    Part.LineSegment(App.Vector(4646, -725, 0), App.Vector(3996, -725, 0)),  # 4
    Part.LineSegment(App.Vector(3996, -725, 0), App.Vector(3811, -1046, 0)),  # 5
    Part.ArcOfCircle(Part.Circle(App.Vector(3183, -683, 0), App.Vector(0, 0, 1), 725), math.radians(-120), math.radians(-30)),  # 6
    Part.ArcOfCircle(Part.Circle(App.Vector(2683, -1549, 0), App.Vector(0, 0, 1), 275), math.radians(60), math.radians(120)),  # 7
    Part.ArcOfCircle(Part.Circle(App.Vector(2183, -683, 0), App.Vector(0, 0, 1), 725), math.radians(-150), math.radians(-60)),  # 8
    Part.LineSegment(App.Vector(1555, -1046, 0), App.Vector(1370, -725, 0)),  # 9
    Part.LineSegment(App.Vector(1370, -725, 0), App.Vector(500, -725, 0)),  # 10
    Part.ArcOfCircle(Part.Circle(App.Vector(500, 0, 0), App.Vector(0, 0, 1), 725), math.radians(-180), math.radians(-90)),  # 11
    Part.LineSegment(App.Vector(-225, 0, 0), App.Vector(-225, 3000, 0)),  # 12
    Part.ArcOfCircle(Part.Circle(App.Vector(500, 3000, 0), App.Vector(0, 0, 1), 725), math.radians(90), math.radians(180)),  # 13
    Part.ArcOfCircle(Part.Circle(App.Vector(500, 4000, 0), App.Vector(0, 0, 1), 275), math.radians(-90), math.radians(0)),  # 14
    Part.LineSegment(App.Vector(775, 4000, 0), App.Vector(775, 4775, 0)),  # 15
    Part.LineSegment(App.Vector(775, 4775, 0), App.Vector(500, 4775, 0)),  # 16
    Part.ArcOfCircle(Part.Circle(App.Vector(500, 5500, 0), App.Vector(0, 0, 1), 725), math.radians(0), math.radians(270)),  # 17
    Part.LineSegment(App.Vector(1225, 5500, 0), App.Vector(1225, 5225, 0)),  # 18
    Part.LineSegment(App.Vector(1225, 5225, 0), App.Vector(1921, 5225, 0)),  # 19
    Part.LineSegment(App.Vector(1921, 5225, 0), App.Vector(1921, 5712, 0)),  # 20
    Part.ArcOfCircle(Part.Circle(App.Vector(2646, 5712, 0), App.Vector(0, 0, 1), 725), math.radians(45), math.radians(180)),  # 21
    Part.LineSegment(App.Vector(3159, 6225, 0), App.Vector(3636, 5747, 0)),  # 22
    Part.LineSegment(App.Vector(3636, 5747, 0), App.Vector(3902, 6013, 0)),  # 23
    Part.ArcOfCircle(Part.Circle(App.Vector(4485, 5429, 0), App.Vector(0, 0, 1), 825), math.radians(-135), math.radians(135)),  # 24
    Part.LineSegment(App.Vector(3902, 4846, 0), App.Vector(3636, 5111, 0)),  # 25
    Part.LineSegment(App.Vector(3636, 5111, 0), App.Vector(3513, 4987, 0)),  # 26
    Part.ArcOfCircle(Part.Circle(App.Vector(3000, 5500, 0), App.Vector(0, 0, 1), 725), math.radians(-90), math.radians(-45)),  # 27
    Part.LineSegment(App.Vector(3000, 4775, 0), App.Vector(2371, 4775, 0)),  # 28
    Part.LineSegment(App.Vector(2371, 4775, 0), App.Vector(2371, 2212, 0)),  # 29
    Part.ArcOfCircle(Part.Circle(App.Vector(2646, 2212, 0), App.Vector(0, 0, 1), 275), math.radians(180), math.radians(270)),  # 30
    Part.LineSegment(App.Vector(500, -700, 0), App.Vector(1385, -700, 0)),  # 31
    Part.LineSegment(App.Vector(1385, -700, 0), App.Vector(1577, -1033, 0)),  # 32
    Part.ArcOfCircle(Part.Circle(App.Vector(2183, -683, 0), App.Vector(0, 0, 1), 700), math.radians(-150), math.radians(-60)),  # 33
    Part.ArcOfCircle(Part.Circle(App.Vector(2683, -1549, 0), App.Vector(0, 0, 1), 300), math.radians(60), math.radians(120)),  # 34
    Part.ArcOfCircle(Part.Circle(App.Vector(3183, -683, 0), App.Vector(0, 0, 1), 700), math.radians(-120), math.radians(-30)),  # 35
    Part.LineSegment(App.Vector(3789, -1033, 0), App.Vector(3981, -700, 0)),  # 36
    Part.LineSegment(App.Vector(3981, -700, 0), App.Vector(4646, -700, 0)),  # 37
    Part.ArcOfCircle(Part.Circle(App.Vector(4646, 0, 0), App.Vector(0, 0, 1), 700), math.radians(-90), math.radians(0)),  # 38
    Part.LineSegment(App.Vector(5346, 0, 0), App.Vector(5346, 1212, 0)),  # 39
    Part.ArcOfCircle(Part.Circle(App.Vector(4646, 1212, 0), App.Vector(0, 0, 1), 700), math.radians(0), math.radians(90)),  # 40
    Part.LineSegment(App.Vector(4646, 1912, 0), App.Vector(2646, 1912, 0)),  # 41
    Part.ArcOfCircle(Part.Circle(App.Vector(2646, 2212, 0), App.Vector(0, 0, 1), 300), math.radians(180), math.radians(270)),  # 42
    Part.LineSegment(App.Vector(2346, 2212, 0), App.Vector(2346, 4800, 0)),  # 43
    Part.LineSegment(App.Vector(2346, 4800, 0), App.Vector(3000, 4800, 0)),  # 44
    Part.ArcOfCircle(Part.Circle(App.Vector(3000, 5500, 0), App.Vector(0, 0, 1), 700), math.radians(-90), math.radians(-45)),  # 45
    Part.LineSegment(App.Vector(3495, 5005, 0), App.Vector(3636, 5146, 0)),  # 46
    Part.LineSegment(App.Vector(3636, 5146, 0), App.Vector(3919, 4864, 0)),  # 47
    Part.ArcOfCircle(Part.Circle(App.Vector(4485, 5429, 0), App.Vector(0, 0, 1), 800), math.radians(-135), math.radians(135)),  # 48
    Part.LineSegment(App.Vector(3919, 5995, 0), App.Vector(3636, 5712, 0)),  # 49
    Part.LineSegment(App.Vector(3636, 5712, 0), App.Vector(3141, 6207, 0)),  # 50
    Part.ArcOfCircle(Part.Circle(App.Vector(2646, 5712, 0), App.Vector(0, 0, 1), 700), math.radians(45), math.radians(180)),  # 51
    Part.LineSegment(App.Vector(1946, 5712, 0), App.Vector(1946, 5200, 0)),  # 52
    Part.LineSegment(App.Vector(1946, 5200, 0), App.Vector(1200, 5200, 0)),  # 53
    Part.LineSegment(App.Vector(1200, 5200, 0), App.Vector(1200, 5500, 0)),  # 54
    Part.ArcOfCircle(Part.Circle(App.Vector(500, 5500, 0), App.Vector(0, 0, 1), 700), math.radians(0), math.radians(270)),  # 55
    Part.LineSegment(App.Vector(500, 4800, 0), App.Vector(800, 4800, 0)),  # 56
    Part.LineSegment(App.Vector(800, 4800, 0), App.Vector(800, 4000, 0)),  # 57
    Part.ArcOfCircle(Part.Circle(App.Vector(500, 4000, 0), App.Vector(0, 0, 1), 300), math.radians(-90), math.radians(0)),  # 58
    Part.ArcOfCircle(Part.Circle(App.Vector(500, 3000, 0), App.Vector(0, 0, 1), 700), math.radians(90), math.radians(180)),  # 59
    Part.LineSegment(App.Vector(-200, 3000, 0), App.Vector(-200, 0, 0)),  # 60
    Part.ArcOfCircle(Part.Circle(App.Vector(500, 0, 0), App.Vector(0, 0, 1), 700), math.radians(180), math.radians(270)),  # 61
], False)
sketch6.addConstraint([
    Sketcher.Constraint("Tangent", 0, 2, 1, 2),
    Sketcher.Constraint("Tangent", 1, 1, 2, 1),
    Sketcher.Constraint("Tangent", 2, 2, 3, 2),
    Sketcher.Constraint("Tangent", 3, 1, 4, 1),
    Sketcher.Constraint("Coincident", 4, 2, 5, 1),
    Sketcher.Constraint("Tangent", 5, 2, 6, 2),
    Sketcher.Constraint("Tangent", 6, 1, 7, 1),
    Sketcher.Constraint("Tangent", 7, 2, 8, 2),
    Sketcher.Constraint("Tangent", 8, 1, 9, 1),
    Sketcher.Constraint("Coincident", 9, 2, 10, 1),
    Sketcher.Constraint("Tangent", 10, 2, 11, 2),
    Sketcher.Constraint("Coincident", 11, 1, 12, 1),
    Sketcher.Constraint("Coincident", 12, 2, 13, 2),
    Sketcher.Constraint("Tangent", 13, 1, 14, 1),
    Sketcher.Constraint("Tangent", 14, 2, 15, 1),
    Sketcher.Constraint("Coincident", 15, 2, 16, 1),
    Sketcher.Constraint("Tangent", 16, 2, 17, 2),
    Sketcher.Constraint("Tangent", 17, 1, 18, 1),
    Sketcher.Constraint("Coincident", 18, 2, 19, 1),
    Sketcher.Constraint("Coincident", 19, 2, 20, 1),
    Sketcher.Constraint("Tangent", 20, 2, 21, 2),
    Sketcher.Constraint("Tangent", 21, 1, 22, 1),
    Sketcher.Constraint("Coincident", 22, 2, 23, 1),
    Sketcher.Constraint("Tangent", 23, 2, 24, 2),
    Sketcher.Constraint("Tangent", 24, 1, 25, 1),
    Sketcher.Constraint("Coincident", 25, 2, 26, 1),
    Sketcher.Constraint("Tangent", 26, 2, 27, 2),
    Sketcher.Constraint("Tangent", 27, 1, 28, 1),
    Sketcher.Constraint("Coincident", 28, 2, 29, 1),
    Sketcher.Constraint("Tangent", 29, 2, 30, 1),
    Sketcher.Constraint("Tangent", 30, 2, 0, 1),
    Sketcher.Constraint("Coincident", 31, 2, 32, 1),
    Sketcher.Constraint("Tangent", 32, 2, 33, 1),
    Sketcher.Constraint("Tangent", 33, 2, 34, 2),
    Sketcher.Constraint("Tangent", 34, 1, 35, 1),
    Sketcher.Constraint("Tangent", 35, 2, 36, 1),
    Sketcher.Constraint("Coincident", 36, 2, 37, 1),
    Sketcher.Constraint("Tangent", 37, 2, 38, 1),
    Sketcher.Constraint("Tangent", 38, 2, 39, 1),
    Sketcher.Constraint("Tangent", 39, 2, 40, 1),
    Sketcher.Constraint("Coincident", 40, 2, 41, 1),
    Sketcher.Constraint("Tangent", 41, 2, 42, 2),
    Sketcher.Constraint("Tangent", 42, 1, 43, 1),
    Sketcher.Constraint("Coincident", 43, 2, 44, 1),
    Sketcher.Constraint("Tangent", 44, 2, 45, 1),
    Sketcher.Constraint("Tangent", 45, 2, 46, 1),
    Sketcher.Constraint("Coincident", 46, 2, 47, 1),
    Sketcher.Constraint("Tangent", 47, 2, 48, 1),
    Sketcher.Constraint("Tangent", 48, 2, 49, 1),
    Sketcher.Constraint("Coincident", 49, 2, 50, 1),
    Sketcher.Constraint("Tangent", 50, 2, 51, 1),
    Sketcher.Constraint("Tangent", 51, 2, 52, 1),
    Sketcher.Constraint("Coincident", 52, 2, 53, 1),
    Sketcher.Constraint("Coincident", 53, 2, 54, 1),
    Sketcher.Constraint("Tangent", 54, 2, 55, 1),
    Sketcher.Constraint("Tangent", 55, 2, 56, 1),
    Sketcher.Constraint("Coincident", 56, 2, 57, 1),
    Sketcher.Constraint("Tangent", 57, 2, 58, 2),
    Sketcher.Constraint("Tangent", 58, 1, 59, 1),
    Sketcher.Constraint("Coincident", 59, 2, 60, 1),
    Sketcher.Constraint("Tangent", 60, 2, 61, 1),
    Sketcher.Constraint("Tangent", 61, 2, 31, 1),
    Sketcher.Constraint("Horizontal", 0),
    Sketcher.Constraint("Vertical", 2),
    Sketcher.Constraint("Horizontal", 4),
    Sketcher.Constraint("Horizontal", 10),
    Sketcher.Constraint("Vertical", 12),
    Sketcher.Constraint("Vertical", 15),
    Sketcher.Constraint("Horizontal", 16),
    Sketcher.Constraint("Vertical", 18),
    Sketcher.Constraint("Horizontal", 19),
    Sketcher.Constraint("Vertical", 20),
    Sketcher.Constraint("Horizontal", 28),
    Sketcher.Constraint("Vertical", 29),
    Sketcher.Constraint("Horizontal", 31),
    Sketcher.Constraint("Horizontal", 37),
    Sketcher.Constraint("Vertical", 39),
    Sketcher.Constraint("Horizontal", 41),
    Sketcher.Constraint("Vertical", 43),
    Sketcher.Constraint("Horizontal", 44),
    Sketcher.Constraint("Vertical", 52),
    Sketcher.Constraint("Horizontal", 53),
    Sketcher.Constraint("Vertical", 54),
    Sketcher.Constraint("Horizontal", 56),
    Sketcher.Constraint("Vertical", 57),
    Sketcher.Constraint("Vertical", 60),
    Sketcher.Constraint("Coincident", 33, 3, 8, 3),
    Sketcher.Constraint("Coincident", 34, 3, 7, 3),
    Sketcher.Constraint("Coincident", 35, 3, 6, 3),
    Sketcher.Constraint("Coincident", 38, 3, 3, 3),
    Sketcher.Constraint("Coincident", 40, 3, 1, 3),
    Sketcher.Constraint("Coincident", 42, 3, 30, 3),
    Sketcher.Constraint("Coincident", 45, 3, 27, 3),
    Sketcher.Constraint("Coincident", 48, 3, 24, 3),
    Sketcher.Constraint("Coincident", 51, 3, 21, 3),
    Sketcher.Constraint("Coincident", 55, 3, 17, 3),
    Sketcher.Constraint("Coincident", 58, 3, 14, 3),
    Sketcher.Constraint("Coincident", 59, 3, 13, 3),
    Sketcher.Constraint("Coincident", 61, 3, 11, 3),
    Sketcher.Constraint("Equal", 1, 3),
    Sketcher.Constraint("Equal", 3, 6),
    Sketcher.Constraint("Equal", 6, 8),
    Sketcher.Constraint("Equal", 8, 11),
    Sketcher.Constraint("Equal", 11, 13),
    Sketcher.Constraint("Equal", 7, 14),
    Sketcher.Constraint("Equal", 13, 17),
    Sketcher.Constraint("Equal", 17, 21),
    Sketcher.Constraint("Equal", 21, 27),
    Sketcher.Constraint("Equal", 14, 30),
    Sketcher.Constraint("Equal", 35, 38),
    Sketcher.Constraint("Equal", 40, 45),
    Sketcher.Constraint("Equal", 45, 51),
    Sketcher.Constraint("Equal", 51, 55),
    Sketcher.Constraint("Equal", 42, 58),
    Sketcher.Constraint("PointOnObject", 3, 3, -1),
    Sketcher.Constraint("PointOnObject", 11, 3, -1),
    Sketcher.Constraint("Perpendicular", 22, 23),
    Sketcher.Constraint("Perpendicular", 23, 25),
    Sketcher.Constraint("Perpendicular", 25, 26),
    Sketcher.Constraint("Parallel", 9, 32),
    Sketcher.Constraint("Parallel", 5, 36),
    Sketcher.Constraint("Parallel", 26, 46),
    Sketcher.Constraint("Perpendicular", 46, 47),
    Sketcher.Constraint("Perpendicular", 47, 49),
    Sketcher.Constraint("Perpendicular", 49, 50),
    Sketcher.Constraint("Horizontal", 6, 3, 8, 3),
    Sketcher.Constraint("Horizontal", 17, 3, 27, 3),
    Sketcher.Constraint("Horizontal", 59, 3, 12, 2),
    Sketcher.Constraint("Horizontal", 20, 2, 49, 2),
    Sketcher.Constraint("Vertical", 13, 3, 14, 3),
    Sketcher.Constraint("Vertical", 14, 3, 17, 3),
    Sketcher.Constraint("Vertical", 21, 3, 30, 3),
    Sketcher.Constraint("Vertical", 22, 2, 25, 2),
    Sketcher.Constraint("Vertical", 25, 2, 46, 2),
    Sketcher.Constraint("Vertical", 46, 2, 49, 2),
    Sketcher.Constraint("Equal", 0, 41),
    Sketcher.Constraint("Equal", 16, 18),
    Sketcher.Constraint("Equal", 56, 54),
    Sketcher.Constraint("Equal", 12, 60),
    Sketcher.Constraint("Equal", 5, 9),
    Sketcher.Constraint("Radius", 1, 725.0),
    Sketcher.Constraint("Radius", 7, 275.0),
    Sketcher.Constraint("Radius", 24, 825.0),
    Sketcher.Constraint("Radius", 33, 700.0),
    Sketcher.Constraint("DistanceX", 0, 1, 0, 2, 2000.0),
    Sketcher.Constraint("DistanceY", 12, 1, 12, 2, 3000.0),
    Sketcher.Constraint("DistanceY", 15, 1, 15, 2, 775.0),
    Sketcher.Constraint("Angle", 5, Q("-120 deg")),
    Sketcher.Constraint("Distance", 23, 375.0),
    Sketcher.Constraint("Distance", 26, 175.0),
    Sketcher.Constraint("DistanceX", -1, 1, 11, 3, 500.0),
    Sketcher.Constraint("DistanceY", -1, 1, 13, 3, 3000.0),
    Sketcher.Constraint("DistanceX", -1, 1, 27, 3, 3000.0),
    Sketcher.Constraint("DistanceX", 10, 2, 10, 1, 870.096189),
    Sketcher.Constraint("DistanceX", 37, 1, 37, 2, 664.951152),
    Sketcher.Constraint("DistanceX", -1, 1, 6, 3, 3183.012702),
    Sketcher.Constraint("DistanceY", 2, 2, 2, 1, 1212.132034),
])
pad6 = body6.newObject("PartDesign::Pad", "Pad005")
pad6.Profile = sketch6
pad6.Length = 20
pad6.Reversed = True
body7 = doc.addObject("PartDesign::Body", "Body006")

# Sketch on XZ plane
sketch7 = body7.newObject("Sketcher::SketchObject", "Sketch006")
sketch7.AttachmentSupport = (doc.getObject("XZ_Plane006"), [""])
sketch7.MapMode = "FlatFace"
sketch7.addGeometry([
    Part.Circle(App.Vector(3646, 1212, 0), App.Vector(0, 0, 1), 300),
    Part.Circle(App.Vector(3646, 1212, 0), App.Vector(0, 0, 1), 275),
], False)
sketch7.addConstraint([
    Sketcher.Constraint("Coincident", 1, 3, 0, 3),
    Sketcher.Constraint("Diameter", 0, 600.0),
    Sketcher.Constraint("Diameter", 1, 550.0),
    Sketcher.Constraint("DistanceX", -1, 1, 0, 3, 3646.446609),
    Sketcher.Constraint("DistanceY", -1, 1, 0, 3, 1212.132034),
])
pad7 = body7.newObject("PartDesign::Pad", "Pad006")
pad7.Profile = sketch7
pad7.Length = 20
pad7.Reversed = True
body8 = doc.addObject("PartDesign::Body", "Body007")

# Sketch on XZ plane
sketch8 = body8.newObject("Sketcher::SketchObject", "Sketch007")
sketch8.AttachmentSupport = (doc.getObject("XZ_Plane007"), [""])
sketch8.MapMode = "FlatFace"
sketch8.addGeometry([
    Part.Circle(App.Vector(700, 2000, 0), App.Vector(0, 0, 1), 500),
    Part.Circle(App.Vector(700, 2000, 0), App.Vector(0, 0, 1), 475),
], False)
sketch8.addConstraint([
    Sketcher.Constraint("Coincident", 1, 3, 0, 3),
    Sketcher.Constraint("Diameter", 0, 1000.0),
    Sketcher.Constraint("Diameter", 1, 950.0),
    Sketcher.Constraint("DistanceX", -1, 1, 0, 3, 700.0),
    Sketcher.Constraint("DistanceY", -1, 1, 0, 3, 2000.0),
])
pad8 = body8.newObject("PartDesign::Pad", "Pad007")
pad8.Profile = sketch8
pad8.Length = 20
pad8.Reversed = True

doc.recompute()
